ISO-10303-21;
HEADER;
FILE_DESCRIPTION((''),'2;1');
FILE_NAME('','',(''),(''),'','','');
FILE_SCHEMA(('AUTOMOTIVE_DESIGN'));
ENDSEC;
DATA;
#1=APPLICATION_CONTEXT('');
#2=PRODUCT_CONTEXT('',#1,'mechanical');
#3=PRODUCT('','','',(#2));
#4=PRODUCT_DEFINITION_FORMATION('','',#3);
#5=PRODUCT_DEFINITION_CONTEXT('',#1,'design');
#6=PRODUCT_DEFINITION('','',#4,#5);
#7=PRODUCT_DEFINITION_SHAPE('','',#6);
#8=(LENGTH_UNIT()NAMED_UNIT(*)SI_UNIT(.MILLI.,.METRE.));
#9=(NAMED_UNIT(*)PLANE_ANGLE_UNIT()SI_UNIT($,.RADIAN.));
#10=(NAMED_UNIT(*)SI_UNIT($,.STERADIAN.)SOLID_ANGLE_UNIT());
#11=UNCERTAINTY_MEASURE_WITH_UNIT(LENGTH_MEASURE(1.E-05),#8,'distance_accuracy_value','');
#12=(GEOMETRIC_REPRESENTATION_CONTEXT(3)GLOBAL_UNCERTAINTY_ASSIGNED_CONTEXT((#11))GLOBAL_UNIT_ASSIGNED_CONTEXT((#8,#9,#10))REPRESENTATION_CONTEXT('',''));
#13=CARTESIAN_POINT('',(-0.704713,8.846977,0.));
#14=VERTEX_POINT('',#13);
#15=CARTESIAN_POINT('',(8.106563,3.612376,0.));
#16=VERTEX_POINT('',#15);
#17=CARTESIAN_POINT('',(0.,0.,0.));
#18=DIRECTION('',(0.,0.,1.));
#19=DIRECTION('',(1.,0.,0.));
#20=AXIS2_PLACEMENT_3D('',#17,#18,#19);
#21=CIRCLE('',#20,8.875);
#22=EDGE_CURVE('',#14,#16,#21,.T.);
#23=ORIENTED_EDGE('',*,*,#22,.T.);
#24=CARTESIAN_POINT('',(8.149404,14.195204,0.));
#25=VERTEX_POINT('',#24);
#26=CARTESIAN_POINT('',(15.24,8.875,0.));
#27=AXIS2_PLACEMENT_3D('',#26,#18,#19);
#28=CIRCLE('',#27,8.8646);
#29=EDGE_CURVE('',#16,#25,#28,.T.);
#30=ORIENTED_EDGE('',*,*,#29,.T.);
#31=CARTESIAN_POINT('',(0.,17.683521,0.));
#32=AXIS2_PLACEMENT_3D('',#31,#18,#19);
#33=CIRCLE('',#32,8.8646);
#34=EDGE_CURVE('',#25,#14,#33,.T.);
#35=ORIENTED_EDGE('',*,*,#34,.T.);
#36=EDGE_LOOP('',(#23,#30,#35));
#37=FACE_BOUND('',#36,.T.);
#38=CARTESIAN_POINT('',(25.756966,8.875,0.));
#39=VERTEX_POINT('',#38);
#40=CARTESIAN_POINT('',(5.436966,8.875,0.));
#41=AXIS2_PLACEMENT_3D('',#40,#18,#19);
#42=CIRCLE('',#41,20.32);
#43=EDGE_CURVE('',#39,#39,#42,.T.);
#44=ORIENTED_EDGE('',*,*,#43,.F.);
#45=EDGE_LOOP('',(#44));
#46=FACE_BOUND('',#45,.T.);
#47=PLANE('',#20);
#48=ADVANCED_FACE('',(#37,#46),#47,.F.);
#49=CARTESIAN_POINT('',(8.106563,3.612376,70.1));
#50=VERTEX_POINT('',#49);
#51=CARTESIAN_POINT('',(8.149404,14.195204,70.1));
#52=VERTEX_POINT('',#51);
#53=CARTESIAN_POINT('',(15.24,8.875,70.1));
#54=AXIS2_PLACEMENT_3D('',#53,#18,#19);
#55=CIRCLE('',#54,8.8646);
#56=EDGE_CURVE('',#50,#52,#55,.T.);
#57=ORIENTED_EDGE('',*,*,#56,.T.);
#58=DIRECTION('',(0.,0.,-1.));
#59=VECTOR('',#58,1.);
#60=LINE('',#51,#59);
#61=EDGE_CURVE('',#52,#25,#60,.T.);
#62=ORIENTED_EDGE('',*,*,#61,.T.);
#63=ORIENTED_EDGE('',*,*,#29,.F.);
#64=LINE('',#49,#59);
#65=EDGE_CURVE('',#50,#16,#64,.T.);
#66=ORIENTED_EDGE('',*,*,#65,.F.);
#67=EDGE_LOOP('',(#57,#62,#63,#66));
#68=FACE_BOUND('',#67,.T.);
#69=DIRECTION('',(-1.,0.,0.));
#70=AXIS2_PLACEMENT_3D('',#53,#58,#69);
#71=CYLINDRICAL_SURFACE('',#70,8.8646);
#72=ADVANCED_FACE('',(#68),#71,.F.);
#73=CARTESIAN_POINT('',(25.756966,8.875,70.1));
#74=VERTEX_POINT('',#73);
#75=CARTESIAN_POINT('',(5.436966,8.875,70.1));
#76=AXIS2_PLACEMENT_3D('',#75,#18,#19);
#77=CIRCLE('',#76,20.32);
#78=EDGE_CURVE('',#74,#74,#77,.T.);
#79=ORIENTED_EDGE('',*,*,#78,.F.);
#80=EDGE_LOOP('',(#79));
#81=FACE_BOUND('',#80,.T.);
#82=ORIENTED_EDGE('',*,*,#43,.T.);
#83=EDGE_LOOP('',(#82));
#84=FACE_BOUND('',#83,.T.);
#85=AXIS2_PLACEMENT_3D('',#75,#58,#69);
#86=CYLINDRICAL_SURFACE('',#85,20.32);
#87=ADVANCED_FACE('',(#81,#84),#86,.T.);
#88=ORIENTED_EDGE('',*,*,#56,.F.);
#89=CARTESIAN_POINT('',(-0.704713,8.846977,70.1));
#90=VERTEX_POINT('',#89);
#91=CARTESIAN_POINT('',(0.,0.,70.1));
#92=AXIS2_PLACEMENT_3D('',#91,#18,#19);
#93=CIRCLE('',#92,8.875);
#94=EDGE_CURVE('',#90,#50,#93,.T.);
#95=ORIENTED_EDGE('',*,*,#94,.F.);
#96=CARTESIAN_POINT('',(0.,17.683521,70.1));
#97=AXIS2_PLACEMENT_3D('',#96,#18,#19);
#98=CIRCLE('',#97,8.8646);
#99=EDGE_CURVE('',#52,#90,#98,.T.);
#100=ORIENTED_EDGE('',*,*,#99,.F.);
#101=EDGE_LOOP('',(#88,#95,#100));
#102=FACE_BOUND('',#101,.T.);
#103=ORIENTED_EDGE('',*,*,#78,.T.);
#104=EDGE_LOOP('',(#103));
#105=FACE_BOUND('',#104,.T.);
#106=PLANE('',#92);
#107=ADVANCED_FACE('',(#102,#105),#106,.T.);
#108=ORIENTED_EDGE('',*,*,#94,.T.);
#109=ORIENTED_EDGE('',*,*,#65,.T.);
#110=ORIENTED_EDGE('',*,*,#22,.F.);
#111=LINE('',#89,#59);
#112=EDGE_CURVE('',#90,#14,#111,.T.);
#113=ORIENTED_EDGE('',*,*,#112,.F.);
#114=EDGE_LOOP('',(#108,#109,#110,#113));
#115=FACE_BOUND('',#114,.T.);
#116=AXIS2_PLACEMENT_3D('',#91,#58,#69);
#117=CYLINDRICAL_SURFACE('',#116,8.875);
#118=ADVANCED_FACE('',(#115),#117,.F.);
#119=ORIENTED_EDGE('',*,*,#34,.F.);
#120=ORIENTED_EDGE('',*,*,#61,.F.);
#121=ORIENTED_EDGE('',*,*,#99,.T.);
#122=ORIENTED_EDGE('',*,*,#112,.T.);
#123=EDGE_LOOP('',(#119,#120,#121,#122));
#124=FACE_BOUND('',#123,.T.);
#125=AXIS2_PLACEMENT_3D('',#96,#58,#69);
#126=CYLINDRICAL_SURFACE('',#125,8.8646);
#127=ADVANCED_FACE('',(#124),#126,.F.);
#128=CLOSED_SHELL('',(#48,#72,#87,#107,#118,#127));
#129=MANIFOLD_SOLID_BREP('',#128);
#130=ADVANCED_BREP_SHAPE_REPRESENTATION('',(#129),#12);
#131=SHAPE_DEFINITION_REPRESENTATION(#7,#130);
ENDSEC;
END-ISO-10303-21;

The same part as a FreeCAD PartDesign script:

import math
import FreeCAD as App
import Part
import Sketcher

V = App.Vector
Q = App.Units.Quantity

doc = App.newDocument("Part")
body = doc.addObject("PartDesign::Body", "Body")

sketch1 = doc.addObject("Sketcher::SketchObject", "Sketch")
body.addObject(sketch1)
sketch1.AttachmentSupport = (doc.XY_Plane, [""])
sketch1.MapMode = "FlatFace"
sketch1.addGeometry(Part.Circle(V(5.436966, 8.875, 0), V(0, 0, 1), 20.32), False)
sketch1.addGeometry(Part.ArcOfCircle(Part.Circle(V(15.24, 8.875, 0), V(0, 0, 1), 8.8646), math.radians(-143.58231), math.radians(0)), False)
sketch1.addGeometry(Part.ArcOfCircle(Part.Circle(V(0, 0, 0), V(0, 0, 1), 8.875), math.radians(0), math.radians(24.018294)), False)
sketch1.addGeometry(Part.ArcOfCircle(Part.Circle(V(0, 0, 0), V(0, 0, 1), 8.875), math.radians(94.554322), math.radians(360)), False)
sketch1.addGeometry(Part.ArcOfCircle(Part.Circle(V(0, 17.683521, 0), V(0, 0, 1), 8.8646), math.radians(0), math.radians(265.440324)), False)
sketch1.addGeometry(Part.ArcOfCircle(Part.Circle(V(0, 17.683521, 0), V(0, 0, 1), 8.8646), math.radians(-23.173137), math.radians(0)), False)
sketch1.addGeometry(Part.ArcOfCircle(Part.Circle(V(15.24, 8.875, 0), V(0, 0, 1), 8.8646), math.radians(0), math.radians(143.118432)), False)
sketch1.addConstraint(Sketcher.Constraint("Coincident", 1, 1, 2, 2))
sketch1.addConstraint(Sketcher.Constraint("Tangent", 2, 1, 3, 2))
sketch1.addConstraint(Sketcher.Constraint("Coincident", 3, 1, 4, 2))
sketch1.addConstraint(Sketcher.Constraint("Tangent", 4, 1, 5, 2))
sketch1.addConstraint(Sketcher.Constraint("Coincident", 5, 1, 6, 2))
sketch1.addConstraint(Sketcher.Constraint("Tangent", 6, 1, 1, 2))
sketch1.addConstraint(Sketcher.Constraint("Coincident", 2, 3, -1, 1))
sketch1.addConstraint(Sketcher.Constraint("Equal", 2, 3))
sketch1.addConstraint(Sketcher.Constraint("Equal", 1, 4))
sketch1.addConstraint(Sketcher.Constraint("Equal", 4, 5))
sketch1.addConstraint(Sketcher.Constraint("Equal", 5, 6))
sketch1.addConstraint(Sketcher.Constraint("PointOnObject", 4, 3, -2))
sketch1.addConstraint(Sketcher.Constraint("PointOnObject", 2, 1, -1))
sketch1.addConstraint(Sketcher.Constraint("Horizontal", 0, 3, 1, 3))
sketch1.addConstraint(Sketcher.Constraint("Horizontal", 5, 3, 4, 1))
sketch1.addConstraint(Sketcher.Constraint("Horizontal", 1, 3, 6, 1))
sketch1.addConstraint(Sketcher.Constraint("Diameter", 0, Q("1.6 in")))
sketch1.addConstraint(Sketcher.Constraint("Radius", 1, Q("0.349 in")))
sketch1.addConstraint(Sketcher.Constraint("DistanceX", -1, 1, 1, 3, Q("0.6 in")))
sketch1.addConstraint(Sketcher.Constraint("Radius", 2, 8.875))
sketch1.addConstraint(Sketcher.Constraint("DistanceY", -1, 1, 0, 3, 8.875))
sketch1.addConstraint(Sketcher.Constraint("DistanceY", -1, 1, 4, 3, 17.683521))
sketch1.addConstraint(Sketcher.Constraint("DistanceX", 3, 1, 0, 3, 6.141678))
pad1 = doc.addObject("PartDesign::Pad", "Pad")
body.addObject(pad1)
pad1.Profile = sketch1
pad1.Length = 70.1

doc.recompute()
